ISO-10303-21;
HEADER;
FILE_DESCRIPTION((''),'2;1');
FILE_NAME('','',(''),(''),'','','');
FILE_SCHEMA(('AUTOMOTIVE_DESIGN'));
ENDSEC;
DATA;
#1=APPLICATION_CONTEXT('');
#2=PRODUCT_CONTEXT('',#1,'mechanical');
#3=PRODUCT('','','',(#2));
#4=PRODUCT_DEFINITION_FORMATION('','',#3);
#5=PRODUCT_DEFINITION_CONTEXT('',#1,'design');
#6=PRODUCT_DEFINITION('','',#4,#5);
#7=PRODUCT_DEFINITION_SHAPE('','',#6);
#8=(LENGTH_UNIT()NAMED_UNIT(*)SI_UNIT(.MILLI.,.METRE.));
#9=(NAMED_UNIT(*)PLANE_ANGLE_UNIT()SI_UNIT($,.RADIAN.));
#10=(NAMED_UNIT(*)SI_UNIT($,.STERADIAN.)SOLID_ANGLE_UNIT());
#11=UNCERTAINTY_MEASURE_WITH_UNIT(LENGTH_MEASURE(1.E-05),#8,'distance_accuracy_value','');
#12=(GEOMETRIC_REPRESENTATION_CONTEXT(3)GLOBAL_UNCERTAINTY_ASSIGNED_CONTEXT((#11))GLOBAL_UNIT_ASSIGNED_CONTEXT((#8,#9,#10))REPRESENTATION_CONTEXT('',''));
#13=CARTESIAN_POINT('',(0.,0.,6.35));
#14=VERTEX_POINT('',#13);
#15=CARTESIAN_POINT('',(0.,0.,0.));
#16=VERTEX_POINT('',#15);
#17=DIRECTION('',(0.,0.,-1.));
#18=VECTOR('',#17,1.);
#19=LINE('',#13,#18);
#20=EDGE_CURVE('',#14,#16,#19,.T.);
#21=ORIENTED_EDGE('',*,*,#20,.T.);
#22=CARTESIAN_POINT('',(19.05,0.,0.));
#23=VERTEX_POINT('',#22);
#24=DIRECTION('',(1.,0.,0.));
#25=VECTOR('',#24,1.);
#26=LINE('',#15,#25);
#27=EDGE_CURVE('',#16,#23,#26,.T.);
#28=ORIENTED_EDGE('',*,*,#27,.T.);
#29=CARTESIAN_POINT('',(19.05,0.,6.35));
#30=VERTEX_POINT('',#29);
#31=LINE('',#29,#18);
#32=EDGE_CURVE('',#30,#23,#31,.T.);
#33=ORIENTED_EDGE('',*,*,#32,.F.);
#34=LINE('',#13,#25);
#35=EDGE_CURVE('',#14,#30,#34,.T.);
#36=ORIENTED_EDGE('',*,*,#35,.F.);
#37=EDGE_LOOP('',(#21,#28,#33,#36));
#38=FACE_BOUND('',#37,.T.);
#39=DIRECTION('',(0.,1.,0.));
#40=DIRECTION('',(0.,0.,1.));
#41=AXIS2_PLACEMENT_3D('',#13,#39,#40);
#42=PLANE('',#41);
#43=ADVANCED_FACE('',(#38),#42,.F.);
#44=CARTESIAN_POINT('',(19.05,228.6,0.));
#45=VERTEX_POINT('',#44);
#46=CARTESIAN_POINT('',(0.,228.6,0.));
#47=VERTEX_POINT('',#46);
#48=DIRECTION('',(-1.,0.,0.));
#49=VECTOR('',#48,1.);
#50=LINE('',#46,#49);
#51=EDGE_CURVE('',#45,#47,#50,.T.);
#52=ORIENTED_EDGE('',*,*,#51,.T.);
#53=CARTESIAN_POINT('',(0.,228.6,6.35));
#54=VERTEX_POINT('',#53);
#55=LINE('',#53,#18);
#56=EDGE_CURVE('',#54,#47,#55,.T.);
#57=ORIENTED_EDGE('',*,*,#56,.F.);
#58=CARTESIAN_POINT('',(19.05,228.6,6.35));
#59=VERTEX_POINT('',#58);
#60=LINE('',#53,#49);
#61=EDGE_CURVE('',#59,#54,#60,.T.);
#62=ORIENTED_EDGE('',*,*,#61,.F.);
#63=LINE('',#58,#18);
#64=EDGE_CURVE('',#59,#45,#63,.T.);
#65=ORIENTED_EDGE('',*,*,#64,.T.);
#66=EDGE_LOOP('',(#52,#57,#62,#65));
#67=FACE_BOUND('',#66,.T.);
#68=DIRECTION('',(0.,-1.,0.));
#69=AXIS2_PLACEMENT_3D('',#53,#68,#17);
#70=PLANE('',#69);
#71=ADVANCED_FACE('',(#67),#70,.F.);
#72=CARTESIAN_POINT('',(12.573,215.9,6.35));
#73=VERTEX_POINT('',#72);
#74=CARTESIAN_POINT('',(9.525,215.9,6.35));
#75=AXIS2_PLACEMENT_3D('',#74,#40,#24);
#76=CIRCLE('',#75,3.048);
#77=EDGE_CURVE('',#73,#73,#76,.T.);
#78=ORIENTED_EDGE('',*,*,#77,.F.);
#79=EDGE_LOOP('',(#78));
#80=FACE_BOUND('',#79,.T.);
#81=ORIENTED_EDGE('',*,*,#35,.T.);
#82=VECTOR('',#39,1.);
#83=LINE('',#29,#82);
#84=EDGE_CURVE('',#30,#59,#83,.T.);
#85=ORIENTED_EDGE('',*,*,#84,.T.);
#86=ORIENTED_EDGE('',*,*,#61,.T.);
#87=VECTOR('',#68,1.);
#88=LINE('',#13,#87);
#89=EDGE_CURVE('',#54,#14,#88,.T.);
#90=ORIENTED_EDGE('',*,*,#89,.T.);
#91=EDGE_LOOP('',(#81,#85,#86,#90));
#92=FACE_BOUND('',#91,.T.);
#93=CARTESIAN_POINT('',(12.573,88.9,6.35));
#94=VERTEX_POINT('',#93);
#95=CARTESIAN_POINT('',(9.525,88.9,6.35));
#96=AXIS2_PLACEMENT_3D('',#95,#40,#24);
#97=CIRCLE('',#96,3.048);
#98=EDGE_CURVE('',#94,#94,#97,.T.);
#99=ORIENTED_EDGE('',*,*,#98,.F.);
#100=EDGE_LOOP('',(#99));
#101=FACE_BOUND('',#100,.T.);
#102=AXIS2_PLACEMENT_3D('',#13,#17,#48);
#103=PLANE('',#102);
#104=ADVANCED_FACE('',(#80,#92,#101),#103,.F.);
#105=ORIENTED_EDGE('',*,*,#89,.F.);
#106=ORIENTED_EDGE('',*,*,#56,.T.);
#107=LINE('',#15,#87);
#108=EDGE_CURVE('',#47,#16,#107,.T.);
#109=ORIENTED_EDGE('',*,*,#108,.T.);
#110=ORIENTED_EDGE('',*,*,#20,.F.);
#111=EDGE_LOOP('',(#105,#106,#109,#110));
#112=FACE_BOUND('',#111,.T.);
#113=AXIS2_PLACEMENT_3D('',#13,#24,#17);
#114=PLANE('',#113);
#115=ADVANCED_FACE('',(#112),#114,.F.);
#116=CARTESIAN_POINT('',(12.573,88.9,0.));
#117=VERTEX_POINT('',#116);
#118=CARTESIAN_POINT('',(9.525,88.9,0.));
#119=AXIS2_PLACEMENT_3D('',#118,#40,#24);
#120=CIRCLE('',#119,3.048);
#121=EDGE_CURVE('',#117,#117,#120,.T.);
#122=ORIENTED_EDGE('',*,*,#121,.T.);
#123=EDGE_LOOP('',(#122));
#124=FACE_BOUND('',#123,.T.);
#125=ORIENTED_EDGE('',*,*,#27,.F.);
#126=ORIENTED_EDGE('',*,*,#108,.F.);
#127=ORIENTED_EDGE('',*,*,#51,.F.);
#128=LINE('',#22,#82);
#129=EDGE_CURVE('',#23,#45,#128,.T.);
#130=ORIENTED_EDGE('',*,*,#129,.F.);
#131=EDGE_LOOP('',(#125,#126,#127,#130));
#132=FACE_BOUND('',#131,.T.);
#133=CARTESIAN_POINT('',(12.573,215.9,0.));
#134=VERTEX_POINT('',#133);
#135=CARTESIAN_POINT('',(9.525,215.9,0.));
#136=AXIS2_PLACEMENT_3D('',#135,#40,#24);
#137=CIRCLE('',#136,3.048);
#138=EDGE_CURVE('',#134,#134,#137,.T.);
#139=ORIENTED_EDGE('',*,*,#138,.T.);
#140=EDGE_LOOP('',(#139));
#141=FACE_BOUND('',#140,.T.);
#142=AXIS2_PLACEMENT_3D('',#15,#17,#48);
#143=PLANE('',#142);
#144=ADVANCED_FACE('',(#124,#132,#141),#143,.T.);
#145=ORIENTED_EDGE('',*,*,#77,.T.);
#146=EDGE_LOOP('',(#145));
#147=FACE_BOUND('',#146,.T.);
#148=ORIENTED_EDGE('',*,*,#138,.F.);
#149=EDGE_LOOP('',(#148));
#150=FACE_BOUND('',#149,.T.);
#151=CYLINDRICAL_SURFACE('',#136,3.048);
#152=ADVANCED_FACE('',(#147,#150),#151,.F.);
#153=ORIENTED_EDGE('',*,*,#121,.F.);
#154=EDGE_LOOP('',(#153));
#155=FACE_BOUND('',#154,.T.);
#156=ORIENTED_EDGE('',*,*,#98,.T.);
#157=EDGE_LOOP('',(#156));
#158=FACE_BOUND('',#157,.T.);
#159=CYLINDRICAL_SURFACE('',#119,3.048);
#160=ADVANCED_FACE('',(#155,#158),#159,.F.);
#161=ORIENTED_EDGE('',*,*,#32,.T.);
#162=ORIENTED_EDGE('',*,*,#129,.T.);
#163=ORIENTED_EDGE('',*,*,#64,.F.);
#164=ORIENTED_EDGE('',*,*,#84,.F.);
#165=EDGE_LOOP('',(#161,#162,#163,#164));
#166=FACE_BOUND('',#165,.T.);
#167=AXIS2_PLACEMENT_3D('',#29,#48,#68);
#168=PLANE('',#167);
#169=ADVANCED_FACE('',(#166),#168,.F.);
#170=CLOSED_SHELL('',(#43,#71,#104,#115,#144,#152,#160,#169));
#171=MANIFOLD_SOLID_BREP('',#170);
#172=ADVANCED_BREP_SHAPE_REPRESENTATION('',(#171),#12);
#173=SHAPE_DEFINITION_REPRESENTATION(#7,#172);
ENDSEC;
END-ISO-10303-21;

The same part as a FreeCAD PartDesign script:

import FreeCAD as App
import Part
import Sketcher
from FreeCAD import Vector
Q = App.Units.Quantity

doc = App.newDocument("Part")
body = doc.addObject("PartDesign::Body", "Body")

sketch1 = body.newObject("Sketcher::SketchObject", "Sketch")
sketch1.AttachmentSupport = (doc.getObject("XY_Plane"), [""])
sketch1.MapMode = "FlatFace"
sketch1.addGeometry([
    Part.LineSegment(Vector(0, 229, 0), Vector(0, 0, 0)),
    Part.LineSegment(Vector(0, 0, 0), Vector(19, 0, 0)),
    Part.LineSegment(Vector(19, 0, 0), Vector(19, 229, 0)),
    Part.LineSegment(Vector(19, 229, 0), Vector(0, 229, 0)),
], False)
sketch1.addConstraint([
    Sketcher.Constraint("Coincident", 0, 2, 1, 1),
    Sketcher.Constraint("Coincident", 1, 2, 2, 1),
    Sketcher.Constraint("Coincident", 2, 2, 3, 1),
    Sketcher.Constraint("Coincident", 3, 2, 0, 1),
    Sketcher.Constraint("Vertical", 0),
    Sketcher.Constraint("Horizontal", 1),
    Sketcher.Constraint("Vertical", 2),
    Sketcher.Constraint("Horizontal", 3),
    Sketcher.Constraint("Coincident", 0, 2, -1, 1),
    Sketcher.Constraint("DistanceY", 0, 2, 0, 1, Q("9 in")),
    Sketcher.Constraint("DistanceX", 1, 1, 1, 2, Q("0.75 in")),
])
pad1 = body.newObject("PartDesign::Pad", "Pad")
pad1.Profile = sketch1
pad1.Length = Q("0.25 in")

sketch2 = body.newObject("Sketcher::SketchObject", "Sketch001")
sketch2.AttachmentSupport = (doc.getObject("XY_Plane"), [""])
sketch2.MapMode = "FlatFace"
sketch2.AttachmentOffset = App.Placement(Vector(0, 0, 0.25 * 25.4), App.Rotation())
sketch2.addGeometry([
    Part.Circle(Vector(9.5, 215.9, 0), Vector(0, 0, 1), 3),
    Part.Circle(Vector(9.5, 88.9, 0), Vector(0, 0, 1), 3),
], False)
sketch2.addConstraint([
    Sketcher.Constraint("Equal", 0, 1),
    Sketcher.Constraint("Vertical", 0, 3, 1, 3),
    Sketcher.Constraint("Diameter", 0, Q("0.24 in")),
    Sketcher.Constraint("DistanceY", 1, 3, 0, 3, Q("5 in")),
    Sketcher.Constraint("DistanceY", -1, 1, 0, 3, Q("8.5 in")),
    Sketcher.Constraint("DistanceX", -1, 1, 0, 3, Q("0.375 in")),
])
pocket1 = body.newObject("PartDesign::Pocket", "Pocket")
pocket1.Profile = sketch2
pocket1.Length = Q("0.25 in")

doc.recompute()
